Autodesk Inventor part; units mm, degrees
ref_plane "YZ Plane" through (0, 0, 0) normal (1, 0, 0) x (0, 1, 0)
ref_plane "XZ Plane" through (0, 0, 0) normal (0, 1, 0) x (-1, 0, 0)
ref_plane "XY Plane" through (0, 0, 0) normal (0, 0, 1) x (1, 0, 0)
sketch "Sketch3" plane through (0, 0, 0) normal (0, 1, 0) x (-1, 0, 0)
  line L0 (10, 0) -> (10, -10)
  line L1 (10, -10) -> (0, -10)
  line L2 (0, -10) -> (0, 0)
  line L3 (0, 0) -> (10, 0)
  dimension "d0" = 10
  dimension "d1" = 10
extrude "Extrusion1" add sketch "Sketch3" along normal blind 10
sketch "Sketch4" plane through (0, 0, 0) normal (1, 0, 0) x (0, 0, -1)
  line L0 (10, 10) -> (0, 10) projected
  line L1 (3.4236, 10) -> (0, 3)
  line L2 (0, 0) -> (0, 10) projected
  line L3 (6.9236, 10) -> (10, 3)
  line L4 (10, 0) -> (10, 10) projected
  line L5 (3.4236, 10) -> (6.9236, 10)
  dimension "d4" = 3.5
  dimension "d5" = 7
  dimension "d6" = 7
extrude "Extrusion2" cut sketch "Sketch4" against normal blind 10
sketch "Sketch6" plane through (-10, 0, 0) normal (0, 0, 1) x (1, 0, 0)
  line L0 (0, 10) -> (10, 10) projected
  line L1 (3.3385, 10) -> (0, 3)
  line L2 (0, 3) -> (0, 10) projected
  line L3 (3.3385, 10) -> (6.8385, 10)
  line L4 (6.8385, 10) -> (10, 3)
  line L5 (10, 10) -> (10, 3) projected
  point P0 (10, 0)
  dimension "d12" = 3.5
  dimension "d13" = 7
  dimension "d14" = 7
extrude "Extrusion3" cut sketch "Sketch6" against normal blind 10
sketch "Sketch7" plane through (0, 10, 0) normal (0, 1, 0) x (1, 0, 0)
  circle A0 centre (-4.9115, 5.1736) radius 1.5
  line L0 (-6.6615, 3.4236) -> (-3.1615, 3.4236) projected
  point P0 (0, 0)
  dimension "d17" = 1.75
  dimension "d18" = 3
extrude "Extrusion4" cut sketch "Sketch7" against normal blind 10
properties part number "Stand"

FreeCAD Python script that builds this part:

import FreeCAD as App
import Part
import Sketcher

doc = App.newDocument("Part")
params = doc.addObject("Spreadsheet::Sheet", "Params")
for row, (alias, value) in enumerate([
    ("sketch1_width", "10 mm"),
    ("pad1_length", "10 mm"),
    ("sketch2_width", "7 mm"),
    ("pocket1_length", "10 mm"),
    ("sketch3_height", "7 mm"),
    ("pocket2_length", "10 mm"),
    ("sketch4_diameter", "3 mm"),
    ("pocket3_length", "10 mm"),
], start=1):
    params.set(f"A{row}", alias)
    params.set(f"B{row}", "=" + value)
    params.setAlias(f"B{row}", alias)

body = doc.addObject("PartDesign::Body", "Body")

sketch1 = doc.addObject("Sketcher::SketchObject", "Sketch")
body.addObject(sketch1)
sketch1.AttachmentSupport = (doc.XZ_Plane, [""])
sketch1.MapMode = "FlatFace"
sketch1.addGeometry(Part.LineSegment(App.Vector(-10, -10, 0), App.Vector(-10, 0, 0)), False)
sketch1.addGeometry(Part.LineSegment(App.Vector(-10, 0, 0), App.Vector(0, 0, 0)), False)
sketch1.addGeometry(Part.LineSegment(App.Vector(0, 0, 0), App.Vector(0, -10, 0)), False)
sketch1.addGeometry(Part.LineSegment(App.Vector(0, -10, 0), App.Vector(-10, -10, 0)), False)
sketch1.addConstraint(Sketcher.Constraint("Coincident", 0, 2, 1, 1))
sketch1.addConstraint(Sketcher.Constraint("Coincident", 1, 2, 2, 1))
sketch1.addConstraint(Sketcher.Constraint("Coincident", 2, 2, 3, 1))
sketch1.addConstraint(Sketcher.Constraint("Coincident", 3, 2, 0, 1))
sketch1.addConstraint(Sketcher.Constraint("Vertical", 0))
sketch1.addConstraint(Sketcher.Constraint("Horizontal", 1))
sketch1.addConstraint(Sketcher.Constraint("Vertical", 2))
sketch1.addConstraint(Sketcher.Constraint("Horizontal", 3))
sketch1.addConstraint(Sketcher.Constraint("Coincident", 1, 2, -1, 1))
sketch1.addConstraint(Sketcher.Constraint("Equal", 3, 0))
sketch1.addConstraint(Sketcher.Constraint("DistanceX", 1, 1, 1, 2, 10.0))
sketch1.setExpression("Constraints[10]", "Params.sketch1_width")
pad1 = doc.addObject("PartDesign::Pad", "Pad")
body.addObject(pad1)
pad1.Profile = sketch1
pad1.setExpression("Length", "Params.pad1_length")
pad1.Reversed = True

sketch2 = doc.addObject("Sketcher::SketchObject", "Sketch001")
body.addObject(sketch2)
sketch2.AttachmentSupport = (doc.YZ_Plane, [""])
sketch2.MapMode = "FlatFace"
sketch2.addGeometry(Part.LineSegment(App.Vector(3, -10, 0), App.Vector(10, -10, 0)), False)
sketch2.addGeometry(Part.LineSegment(App.Vector(10, -10, 0), App.Vector(10, -6.9236, 0)), False)
sketch2.addGeometry(Part.LineSegment(App.Vector(10, -6.9236, 0), App.Vector(3, -10, 0)), False)
sketch2.addGeometry(Part.LineSegment(App.Vector(3, 0, 0), App.Vector(10, -3.4236, 0)), False)
sketch2.addGeometry(Part.LineSegment(App.Vector(10, -3.4236, 0), App.Vector(10, 0, 0)), False)
sketch2.addGeometry(Part.LineSegment(App.Vector(10, 0, 0), App.Vector(3, 0, 0)), False)
sketch2.addConstraint(Sketcher.Constraint("Coincident", 0, 2, 1, 1))
sketch2.addConstraint(Sketcher.Constraint("Coincident", 1, 2, 2, 1))
sketch2.addConstraint(Sketcher.Constraint("Coincident", 2, 2, 0, 1))
sketch2.addConstraint(Sketcher.Constraint("Coincident", 3, 2, 4, 1))
sketch2.addConstraint(Sketcher.Constraint("Coincident", 4, 2, 5, 1))
sketch2.addConstraint(Sketcher.Constraint("Coincident", 5, 2, 3, 1))
sketch2.addConstraint(Sketcher.Constraint("Horizontal", 0))
sketch2.addConstraint(Sketcher.Constraint("Vertical", 1))
sketch2.addConstraint(Sketcher.Constraint("Vertical", 4))
sketch2.addConstraint(Sketcher.Constraint("Horizontal", 5))
sketch2.addConstraint(Sketcher.Constraint("PointOnObject", 4, 2, -1))
sketch2.addConstraint(Sketcher.Constraint("Vertical", 1, 2, 3, 2))
sketch2.addConstraint(Sketcher.Constraint("Vertical", 2, 2, 5, 2))
sketch2.addConstraint(Sketcher.Constraint("DistanceX", 0, 1, 0, 2, 7.0))
sketch2.addConstraint(Sketcher.Constraint("DistanceY", 1, 2, 3, 2, 3.5))
sketch2.addConstraint(Sketcher.Constraint("DistanceX", -1, 1, 0, 2, 10.0))
sketch2.addConstraint(Sketcher.Constraint("DistanceY", 0, 2, -1, 1, 10.0))
sketch2.addConstraint(Sketcher.Constraint("DistanceY", 1, 1, 1, 2, 3.0764))
sketch2.setExpression("Constraints[13]", "Params.sketch2_width")
pocket1 = doc.addObject("PartDesign::Pocket", "Pocket")
body.addObject(pocket1)
pocket1.Profile = sketch2
pocket1.setExpression("Length", "Params.pocket1_length")

sketch3 = doc.addObject("Sketcher::SketchObject", "Sketch002")
body.addObject(sketch3)
sketch3.AttachmentSupport = (doc.XY_Plane, [""])
sketch3.MapMode = "FlatFace"
sketch3.addGeometry(Part.LineSegment(App.Vector(0, 10, 0), App.Vector(-3.1615, 10, 0)), False)
sketch3.addGeometry(Part.LineSegment(App.Vector(-3.1615, 10, 0), App.Vector(0, 3, 0)), False)
sketch3.addGeometry(Part.LineSegment(App.Vector(0, 3, 0), App.Vector(0, 10, 0)), False)
sketch3.addGeometry(Part.LineSegment(App.Vector(-6.6615, 10, 0), App.Vector(-10, 10, 0)), False)
sketch3.addGeometry(Part.LineSegment(App.Vector(-10, 10, 0), App.Vector(-10, 3, 0)), False)
sketch3.addGeometry(Part.LineSegment(App.Vector(-10, 3, 0), App.Vector(-6.6615, 10, 0)), False)
sketch3.addConstraint(Sketcher.Constraint("Coincident", 0, 2, 1, 1))
sketch3.addConstraint(Sketcher.Constraint("Coincident", 1, 2, 2, 1))
sketch3.addConstraint(Sketcher.Constraint("Coincident", 2, 2, 0, 1))
sketch3.addConstraint(Sketcher.Constraint("Coincident", 3, 2, 4, 1))
sketch3.addConstraint(Sketcher.Constraint("Coincident", 4, 2, 5, 1))
sketch3.addConstraint(Sketcher.Constraint("Coincident", 5, 2, 3, 1))
sketch3.addConstraint(Sketcher.Constraint("Horizontal", 0))
sketch3.addConstraint(Sketcher.Constraint("Vertical", 2))
sketch3.addConstraint(Sketcher.Constraint("Horizontal", 3))
sketch3.addConstraint(Sketcher.Constraint("Vertical", 4))
sketch3.addConstraint(Sketcher.Constraint("PointOnObject", 1, 2, -2))
sketch3.addConstraint(Sketcher.Constraint("Horizontal", 2, 2, 3, 2))
sketch3.addConstraint(Sketcher.Constraint("Horizontal", 1, 2, 4, 2))
sketch3.addConstraint(Sketcher.Constraint("DistanceY", 2, 1, 2, 2, 7.0))
sketch3.addConstraint(Sketcher.Constraint("DistanceX", 5, 2, 0, 2, 3.5))
sketch3.addConstraint(Sketcher.Constraint("DistanceY", -1, 1, 0, 2, 10.0))
sketch3.addConstraint(Sketcher.Constraint("DistanceX", 3, 2, -1, 1, 10.0))
sketch3.addConstraint(Sketcher.Constraint("DistanceX", 0, 2, 0, 1, 3.1615))
sketch3.setExpression("Constraints[13]", "Params.sketch3_height")
pocket2 = doc.addObject("PartDesign::Pocket", "Pocket001")
body.addObject(pocket2)
pocket2.Profile = sketch3
pocket2.setExpression("Length", "Params.pocket2_length")

sketch4 = doc.addObject("Sketcher::SketchObject", "Sketch003")
body.addObject(sketch4)
sketch4.AttachmentSupport = (doc.XZ_Plane, [""])
sketch4.MapMode = "FlatFace"
sketch4.AttachmentOffset = App.Placement(App.Vector(0, 0, -10), App.Rotation())
sketch4.addGeometry(Part.Circle(App.Vector(-4.9115, -5.1736, 0), App.Vector(0, 0, 1), 1.5), False)
sketch4.addConstraint(Sketcher.Constraint("Diameter", 0, 3.0))
sketch4.addConstraint(Sketcher.Constraint("DistanceX", 0, 3, -1, 1, 4.9115))
sketch4.addConstraint(Sketcher.Constraint("DistanceY", 0, 3, -1, 1, 5.1736))
sketch4.setExpression("Constraints[0]", "Params.sketch4_diameter")
pocket3 = doc.addObject("PartDesign::Pocket", "Pocket002")
body.addObject(pocket3)
pocket3.Profile = sketch4
pocket3.setExpression("Length", "Params.pocket3_length")
pocket3.Reversed = True

doc.recompute()
